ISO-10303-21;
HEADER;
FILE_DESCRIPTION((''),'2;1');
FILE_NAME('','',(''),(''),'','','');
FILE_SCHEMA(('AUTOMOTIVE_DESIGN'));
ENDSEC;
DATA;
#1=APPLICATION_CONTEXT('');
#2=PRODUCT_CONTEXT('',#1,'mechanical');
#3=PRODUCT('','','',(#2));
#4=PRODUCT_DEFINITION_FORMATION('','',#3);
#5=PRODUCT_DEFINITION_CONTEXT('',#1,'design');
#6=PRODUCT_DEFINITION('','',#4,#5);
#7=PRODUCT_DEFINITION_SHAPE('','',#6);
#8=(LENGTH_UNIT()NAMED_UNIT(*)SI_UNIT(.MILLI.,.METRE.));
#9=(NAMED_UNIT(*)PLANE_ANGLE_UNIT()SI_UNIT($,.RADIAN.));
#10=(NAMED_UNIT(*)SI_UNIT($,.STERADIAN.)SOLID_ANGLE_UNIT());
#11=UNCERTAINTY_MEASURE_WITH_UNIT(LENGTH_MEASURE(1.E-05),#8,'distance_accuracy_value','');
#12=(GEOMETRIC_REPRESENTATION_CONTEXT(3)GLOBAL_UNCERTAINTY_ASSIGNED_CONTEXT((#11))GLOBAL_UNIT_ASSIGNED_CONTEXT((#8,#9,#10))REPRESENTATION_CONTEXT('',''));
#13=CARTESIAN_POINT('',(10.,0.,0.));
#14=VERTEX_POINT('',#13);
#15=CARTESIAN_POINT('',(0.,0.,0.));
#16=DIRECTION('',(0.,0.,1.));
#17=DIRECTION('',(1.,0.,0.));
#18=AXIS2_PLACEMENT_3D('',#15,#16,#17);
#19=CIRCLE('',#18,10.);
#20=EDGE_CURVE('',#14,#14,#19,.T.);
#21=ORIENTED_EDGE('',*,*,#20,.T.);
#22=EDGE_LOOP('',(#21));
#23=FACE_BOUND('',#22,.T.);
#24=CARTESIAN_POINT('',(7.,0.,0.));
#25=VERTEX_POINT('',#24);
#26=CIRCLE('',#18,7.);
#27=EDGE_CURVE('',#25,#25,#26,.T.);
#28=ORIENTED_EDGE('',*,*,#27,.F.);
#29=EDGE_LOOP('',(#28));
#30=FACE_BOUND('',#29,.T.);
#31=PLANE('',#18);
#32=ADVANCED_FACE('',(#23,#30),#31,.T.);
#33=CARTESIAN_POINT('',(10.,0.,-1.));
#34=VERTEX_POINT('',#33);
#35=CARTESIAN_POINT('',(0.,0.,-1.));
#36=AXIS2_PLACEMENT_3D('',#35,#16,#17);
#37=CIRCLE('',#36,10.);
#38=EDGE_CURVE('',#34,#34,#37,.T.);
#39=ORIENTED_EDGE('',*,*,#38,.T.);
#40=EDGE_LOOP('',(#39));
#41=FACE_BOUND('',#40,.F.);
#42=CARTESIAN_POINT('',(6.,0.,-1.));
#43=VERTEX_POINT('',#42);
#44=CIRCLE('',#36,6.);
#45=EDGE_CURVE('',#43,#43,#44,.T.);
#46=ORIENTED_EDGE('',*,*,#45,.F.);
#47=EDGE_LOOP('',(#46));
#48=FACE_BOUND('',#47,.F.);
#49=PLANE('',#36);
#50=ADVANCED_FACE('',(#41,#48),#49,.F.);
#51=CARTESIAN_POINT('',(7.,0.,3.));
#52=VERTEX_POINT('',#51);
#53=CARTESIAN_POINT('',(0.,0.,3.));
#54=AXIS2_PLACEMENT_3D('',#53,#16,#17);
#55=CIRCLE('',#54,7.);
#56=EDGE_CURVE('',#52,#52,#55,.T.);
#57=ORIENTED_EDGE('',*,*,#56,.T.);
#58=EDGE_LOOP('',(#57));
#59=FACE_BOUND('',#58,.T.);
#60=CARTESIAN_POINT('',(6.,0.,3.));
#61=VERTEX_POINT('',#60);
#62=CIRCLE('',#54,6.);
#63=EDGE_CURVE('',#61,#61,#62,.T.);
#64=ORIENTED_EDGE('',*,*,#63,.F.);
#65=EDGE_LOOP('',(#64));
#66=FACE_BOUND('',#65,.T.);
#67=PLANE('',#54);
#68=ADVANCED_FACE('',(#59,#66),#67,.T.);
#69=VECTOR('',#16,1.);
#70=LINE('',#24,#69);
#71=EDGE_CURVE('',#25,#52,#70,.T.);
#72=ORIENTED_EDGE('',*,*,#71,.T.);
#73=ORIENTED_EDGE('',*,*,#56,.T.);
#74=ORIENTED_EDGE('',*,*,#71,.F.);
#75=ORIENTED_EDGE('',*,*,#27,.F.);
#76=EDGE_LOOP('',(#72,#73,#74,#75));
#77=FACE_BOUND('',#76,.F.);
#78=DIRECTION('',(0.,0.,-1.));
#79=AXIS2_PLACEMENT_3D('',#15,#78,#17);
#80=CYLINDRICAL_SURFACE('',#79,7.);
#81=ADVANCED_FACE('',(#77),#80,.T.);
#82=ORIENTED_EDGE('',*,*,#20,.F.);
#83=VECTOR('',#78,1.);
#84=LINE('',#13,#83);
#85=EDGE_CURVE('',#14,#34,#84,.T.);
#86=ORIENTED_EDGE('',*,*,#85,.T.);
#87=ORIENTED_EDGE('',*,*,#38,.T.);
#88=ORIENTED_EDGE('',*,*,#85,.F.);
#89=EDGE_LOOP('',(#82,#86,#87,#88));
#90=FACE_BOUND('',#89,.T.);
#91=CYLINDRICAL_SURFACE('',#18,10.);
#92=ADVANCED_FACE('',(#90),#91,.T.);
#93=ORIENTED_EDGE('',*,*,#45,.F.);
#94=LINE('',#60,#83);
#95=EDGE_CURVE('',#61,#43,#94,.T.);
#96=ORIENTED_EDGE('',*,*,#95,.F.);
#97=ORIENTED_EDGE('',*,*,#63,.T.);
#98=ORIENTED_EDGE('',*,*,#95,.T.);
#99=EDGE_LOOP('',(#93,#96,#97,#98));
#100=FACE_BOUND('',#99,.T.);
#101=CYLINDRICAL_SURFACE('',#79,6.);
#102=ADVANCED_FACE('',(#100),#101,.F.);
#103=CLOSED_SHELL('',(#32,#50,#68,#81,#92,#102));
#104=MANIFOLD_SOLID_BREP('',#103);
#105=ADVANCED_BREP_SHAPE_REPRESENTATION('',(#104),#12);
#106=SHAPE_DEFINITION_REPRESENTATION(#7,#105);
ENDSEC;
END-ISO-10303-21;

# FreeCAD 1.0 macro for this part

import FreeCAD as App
import Part
import Sketcher
Q = App.Units.Quantity

doc = App.newDocument("Part")
body = doc.addObject("PartDesign::Body", "Body")

# Sketch on XY plane
sketch1 = body.newObject("Sketcher::SketchObject", "Sketch")
sketch1.AttachmentSupport = (doc.getObject("XY_Plane"), [""])
sketch1.MapMode = "FlatFace"
sketch1.addGeometry([
    Part.Circle(App.Vector(0, 0, 0), App.Vector(0, 0, 1), 7),
    Part.Circle(App.Vector(0, 0, 0), App.Vector(0, 0, 1), 6),
], False)
sketch1.addConstraint([
    Sketcher.Constraint("Coincident", 0, 3, -1, 1),
    Sketcher.Constraint("Coincident", 1, 3, -1, 1),
    Sketcher.Constraint("Diameter", 0, Q("14 mm")),
    Sketcher.Constraint("Diameter", 1, Q("12 mm")),
])
pad1 = body.newObject("PartDesign::Pad", "Pad")
pad1.Profile = sketch1
pad1.Length = 3

# Sketch on XY plane
sketch2 = body.newObject("Sketcher::SketchObject", "Sketch001")
sketch2.AttachmentSupport = (doc.getObject("XY_Plane"), [""])
sketch2.MapMode = "FlatFace"
sketch2.addGeometry([
    Part.Circle(App.Vector(0, 0, 0), App.Vector(0, 0, 1), 10),
    Part.Circle(App.Vector(0, 0, 0), App.Vector(0, 0, 1), 6),
], False)
sketch2.addConstraint([
    Sketcher.Constraint("Coincident", 0, 3, -1, 1),
    Sketcher.Constraint("Coincident", 1, 3, -1, 1),
    Sketcher.Constraint("Diameter", 0, Q("20 mm")),
    Sketcher.Constraint("Diameter", 1, Q("12 mm")),
])
pad2 = body.newObject("PartDesign::Pad", "Pad001")
pad2.Profile = sketch2
pad2.Length = 1
pad2.Reversed = True

doc.recompute()
